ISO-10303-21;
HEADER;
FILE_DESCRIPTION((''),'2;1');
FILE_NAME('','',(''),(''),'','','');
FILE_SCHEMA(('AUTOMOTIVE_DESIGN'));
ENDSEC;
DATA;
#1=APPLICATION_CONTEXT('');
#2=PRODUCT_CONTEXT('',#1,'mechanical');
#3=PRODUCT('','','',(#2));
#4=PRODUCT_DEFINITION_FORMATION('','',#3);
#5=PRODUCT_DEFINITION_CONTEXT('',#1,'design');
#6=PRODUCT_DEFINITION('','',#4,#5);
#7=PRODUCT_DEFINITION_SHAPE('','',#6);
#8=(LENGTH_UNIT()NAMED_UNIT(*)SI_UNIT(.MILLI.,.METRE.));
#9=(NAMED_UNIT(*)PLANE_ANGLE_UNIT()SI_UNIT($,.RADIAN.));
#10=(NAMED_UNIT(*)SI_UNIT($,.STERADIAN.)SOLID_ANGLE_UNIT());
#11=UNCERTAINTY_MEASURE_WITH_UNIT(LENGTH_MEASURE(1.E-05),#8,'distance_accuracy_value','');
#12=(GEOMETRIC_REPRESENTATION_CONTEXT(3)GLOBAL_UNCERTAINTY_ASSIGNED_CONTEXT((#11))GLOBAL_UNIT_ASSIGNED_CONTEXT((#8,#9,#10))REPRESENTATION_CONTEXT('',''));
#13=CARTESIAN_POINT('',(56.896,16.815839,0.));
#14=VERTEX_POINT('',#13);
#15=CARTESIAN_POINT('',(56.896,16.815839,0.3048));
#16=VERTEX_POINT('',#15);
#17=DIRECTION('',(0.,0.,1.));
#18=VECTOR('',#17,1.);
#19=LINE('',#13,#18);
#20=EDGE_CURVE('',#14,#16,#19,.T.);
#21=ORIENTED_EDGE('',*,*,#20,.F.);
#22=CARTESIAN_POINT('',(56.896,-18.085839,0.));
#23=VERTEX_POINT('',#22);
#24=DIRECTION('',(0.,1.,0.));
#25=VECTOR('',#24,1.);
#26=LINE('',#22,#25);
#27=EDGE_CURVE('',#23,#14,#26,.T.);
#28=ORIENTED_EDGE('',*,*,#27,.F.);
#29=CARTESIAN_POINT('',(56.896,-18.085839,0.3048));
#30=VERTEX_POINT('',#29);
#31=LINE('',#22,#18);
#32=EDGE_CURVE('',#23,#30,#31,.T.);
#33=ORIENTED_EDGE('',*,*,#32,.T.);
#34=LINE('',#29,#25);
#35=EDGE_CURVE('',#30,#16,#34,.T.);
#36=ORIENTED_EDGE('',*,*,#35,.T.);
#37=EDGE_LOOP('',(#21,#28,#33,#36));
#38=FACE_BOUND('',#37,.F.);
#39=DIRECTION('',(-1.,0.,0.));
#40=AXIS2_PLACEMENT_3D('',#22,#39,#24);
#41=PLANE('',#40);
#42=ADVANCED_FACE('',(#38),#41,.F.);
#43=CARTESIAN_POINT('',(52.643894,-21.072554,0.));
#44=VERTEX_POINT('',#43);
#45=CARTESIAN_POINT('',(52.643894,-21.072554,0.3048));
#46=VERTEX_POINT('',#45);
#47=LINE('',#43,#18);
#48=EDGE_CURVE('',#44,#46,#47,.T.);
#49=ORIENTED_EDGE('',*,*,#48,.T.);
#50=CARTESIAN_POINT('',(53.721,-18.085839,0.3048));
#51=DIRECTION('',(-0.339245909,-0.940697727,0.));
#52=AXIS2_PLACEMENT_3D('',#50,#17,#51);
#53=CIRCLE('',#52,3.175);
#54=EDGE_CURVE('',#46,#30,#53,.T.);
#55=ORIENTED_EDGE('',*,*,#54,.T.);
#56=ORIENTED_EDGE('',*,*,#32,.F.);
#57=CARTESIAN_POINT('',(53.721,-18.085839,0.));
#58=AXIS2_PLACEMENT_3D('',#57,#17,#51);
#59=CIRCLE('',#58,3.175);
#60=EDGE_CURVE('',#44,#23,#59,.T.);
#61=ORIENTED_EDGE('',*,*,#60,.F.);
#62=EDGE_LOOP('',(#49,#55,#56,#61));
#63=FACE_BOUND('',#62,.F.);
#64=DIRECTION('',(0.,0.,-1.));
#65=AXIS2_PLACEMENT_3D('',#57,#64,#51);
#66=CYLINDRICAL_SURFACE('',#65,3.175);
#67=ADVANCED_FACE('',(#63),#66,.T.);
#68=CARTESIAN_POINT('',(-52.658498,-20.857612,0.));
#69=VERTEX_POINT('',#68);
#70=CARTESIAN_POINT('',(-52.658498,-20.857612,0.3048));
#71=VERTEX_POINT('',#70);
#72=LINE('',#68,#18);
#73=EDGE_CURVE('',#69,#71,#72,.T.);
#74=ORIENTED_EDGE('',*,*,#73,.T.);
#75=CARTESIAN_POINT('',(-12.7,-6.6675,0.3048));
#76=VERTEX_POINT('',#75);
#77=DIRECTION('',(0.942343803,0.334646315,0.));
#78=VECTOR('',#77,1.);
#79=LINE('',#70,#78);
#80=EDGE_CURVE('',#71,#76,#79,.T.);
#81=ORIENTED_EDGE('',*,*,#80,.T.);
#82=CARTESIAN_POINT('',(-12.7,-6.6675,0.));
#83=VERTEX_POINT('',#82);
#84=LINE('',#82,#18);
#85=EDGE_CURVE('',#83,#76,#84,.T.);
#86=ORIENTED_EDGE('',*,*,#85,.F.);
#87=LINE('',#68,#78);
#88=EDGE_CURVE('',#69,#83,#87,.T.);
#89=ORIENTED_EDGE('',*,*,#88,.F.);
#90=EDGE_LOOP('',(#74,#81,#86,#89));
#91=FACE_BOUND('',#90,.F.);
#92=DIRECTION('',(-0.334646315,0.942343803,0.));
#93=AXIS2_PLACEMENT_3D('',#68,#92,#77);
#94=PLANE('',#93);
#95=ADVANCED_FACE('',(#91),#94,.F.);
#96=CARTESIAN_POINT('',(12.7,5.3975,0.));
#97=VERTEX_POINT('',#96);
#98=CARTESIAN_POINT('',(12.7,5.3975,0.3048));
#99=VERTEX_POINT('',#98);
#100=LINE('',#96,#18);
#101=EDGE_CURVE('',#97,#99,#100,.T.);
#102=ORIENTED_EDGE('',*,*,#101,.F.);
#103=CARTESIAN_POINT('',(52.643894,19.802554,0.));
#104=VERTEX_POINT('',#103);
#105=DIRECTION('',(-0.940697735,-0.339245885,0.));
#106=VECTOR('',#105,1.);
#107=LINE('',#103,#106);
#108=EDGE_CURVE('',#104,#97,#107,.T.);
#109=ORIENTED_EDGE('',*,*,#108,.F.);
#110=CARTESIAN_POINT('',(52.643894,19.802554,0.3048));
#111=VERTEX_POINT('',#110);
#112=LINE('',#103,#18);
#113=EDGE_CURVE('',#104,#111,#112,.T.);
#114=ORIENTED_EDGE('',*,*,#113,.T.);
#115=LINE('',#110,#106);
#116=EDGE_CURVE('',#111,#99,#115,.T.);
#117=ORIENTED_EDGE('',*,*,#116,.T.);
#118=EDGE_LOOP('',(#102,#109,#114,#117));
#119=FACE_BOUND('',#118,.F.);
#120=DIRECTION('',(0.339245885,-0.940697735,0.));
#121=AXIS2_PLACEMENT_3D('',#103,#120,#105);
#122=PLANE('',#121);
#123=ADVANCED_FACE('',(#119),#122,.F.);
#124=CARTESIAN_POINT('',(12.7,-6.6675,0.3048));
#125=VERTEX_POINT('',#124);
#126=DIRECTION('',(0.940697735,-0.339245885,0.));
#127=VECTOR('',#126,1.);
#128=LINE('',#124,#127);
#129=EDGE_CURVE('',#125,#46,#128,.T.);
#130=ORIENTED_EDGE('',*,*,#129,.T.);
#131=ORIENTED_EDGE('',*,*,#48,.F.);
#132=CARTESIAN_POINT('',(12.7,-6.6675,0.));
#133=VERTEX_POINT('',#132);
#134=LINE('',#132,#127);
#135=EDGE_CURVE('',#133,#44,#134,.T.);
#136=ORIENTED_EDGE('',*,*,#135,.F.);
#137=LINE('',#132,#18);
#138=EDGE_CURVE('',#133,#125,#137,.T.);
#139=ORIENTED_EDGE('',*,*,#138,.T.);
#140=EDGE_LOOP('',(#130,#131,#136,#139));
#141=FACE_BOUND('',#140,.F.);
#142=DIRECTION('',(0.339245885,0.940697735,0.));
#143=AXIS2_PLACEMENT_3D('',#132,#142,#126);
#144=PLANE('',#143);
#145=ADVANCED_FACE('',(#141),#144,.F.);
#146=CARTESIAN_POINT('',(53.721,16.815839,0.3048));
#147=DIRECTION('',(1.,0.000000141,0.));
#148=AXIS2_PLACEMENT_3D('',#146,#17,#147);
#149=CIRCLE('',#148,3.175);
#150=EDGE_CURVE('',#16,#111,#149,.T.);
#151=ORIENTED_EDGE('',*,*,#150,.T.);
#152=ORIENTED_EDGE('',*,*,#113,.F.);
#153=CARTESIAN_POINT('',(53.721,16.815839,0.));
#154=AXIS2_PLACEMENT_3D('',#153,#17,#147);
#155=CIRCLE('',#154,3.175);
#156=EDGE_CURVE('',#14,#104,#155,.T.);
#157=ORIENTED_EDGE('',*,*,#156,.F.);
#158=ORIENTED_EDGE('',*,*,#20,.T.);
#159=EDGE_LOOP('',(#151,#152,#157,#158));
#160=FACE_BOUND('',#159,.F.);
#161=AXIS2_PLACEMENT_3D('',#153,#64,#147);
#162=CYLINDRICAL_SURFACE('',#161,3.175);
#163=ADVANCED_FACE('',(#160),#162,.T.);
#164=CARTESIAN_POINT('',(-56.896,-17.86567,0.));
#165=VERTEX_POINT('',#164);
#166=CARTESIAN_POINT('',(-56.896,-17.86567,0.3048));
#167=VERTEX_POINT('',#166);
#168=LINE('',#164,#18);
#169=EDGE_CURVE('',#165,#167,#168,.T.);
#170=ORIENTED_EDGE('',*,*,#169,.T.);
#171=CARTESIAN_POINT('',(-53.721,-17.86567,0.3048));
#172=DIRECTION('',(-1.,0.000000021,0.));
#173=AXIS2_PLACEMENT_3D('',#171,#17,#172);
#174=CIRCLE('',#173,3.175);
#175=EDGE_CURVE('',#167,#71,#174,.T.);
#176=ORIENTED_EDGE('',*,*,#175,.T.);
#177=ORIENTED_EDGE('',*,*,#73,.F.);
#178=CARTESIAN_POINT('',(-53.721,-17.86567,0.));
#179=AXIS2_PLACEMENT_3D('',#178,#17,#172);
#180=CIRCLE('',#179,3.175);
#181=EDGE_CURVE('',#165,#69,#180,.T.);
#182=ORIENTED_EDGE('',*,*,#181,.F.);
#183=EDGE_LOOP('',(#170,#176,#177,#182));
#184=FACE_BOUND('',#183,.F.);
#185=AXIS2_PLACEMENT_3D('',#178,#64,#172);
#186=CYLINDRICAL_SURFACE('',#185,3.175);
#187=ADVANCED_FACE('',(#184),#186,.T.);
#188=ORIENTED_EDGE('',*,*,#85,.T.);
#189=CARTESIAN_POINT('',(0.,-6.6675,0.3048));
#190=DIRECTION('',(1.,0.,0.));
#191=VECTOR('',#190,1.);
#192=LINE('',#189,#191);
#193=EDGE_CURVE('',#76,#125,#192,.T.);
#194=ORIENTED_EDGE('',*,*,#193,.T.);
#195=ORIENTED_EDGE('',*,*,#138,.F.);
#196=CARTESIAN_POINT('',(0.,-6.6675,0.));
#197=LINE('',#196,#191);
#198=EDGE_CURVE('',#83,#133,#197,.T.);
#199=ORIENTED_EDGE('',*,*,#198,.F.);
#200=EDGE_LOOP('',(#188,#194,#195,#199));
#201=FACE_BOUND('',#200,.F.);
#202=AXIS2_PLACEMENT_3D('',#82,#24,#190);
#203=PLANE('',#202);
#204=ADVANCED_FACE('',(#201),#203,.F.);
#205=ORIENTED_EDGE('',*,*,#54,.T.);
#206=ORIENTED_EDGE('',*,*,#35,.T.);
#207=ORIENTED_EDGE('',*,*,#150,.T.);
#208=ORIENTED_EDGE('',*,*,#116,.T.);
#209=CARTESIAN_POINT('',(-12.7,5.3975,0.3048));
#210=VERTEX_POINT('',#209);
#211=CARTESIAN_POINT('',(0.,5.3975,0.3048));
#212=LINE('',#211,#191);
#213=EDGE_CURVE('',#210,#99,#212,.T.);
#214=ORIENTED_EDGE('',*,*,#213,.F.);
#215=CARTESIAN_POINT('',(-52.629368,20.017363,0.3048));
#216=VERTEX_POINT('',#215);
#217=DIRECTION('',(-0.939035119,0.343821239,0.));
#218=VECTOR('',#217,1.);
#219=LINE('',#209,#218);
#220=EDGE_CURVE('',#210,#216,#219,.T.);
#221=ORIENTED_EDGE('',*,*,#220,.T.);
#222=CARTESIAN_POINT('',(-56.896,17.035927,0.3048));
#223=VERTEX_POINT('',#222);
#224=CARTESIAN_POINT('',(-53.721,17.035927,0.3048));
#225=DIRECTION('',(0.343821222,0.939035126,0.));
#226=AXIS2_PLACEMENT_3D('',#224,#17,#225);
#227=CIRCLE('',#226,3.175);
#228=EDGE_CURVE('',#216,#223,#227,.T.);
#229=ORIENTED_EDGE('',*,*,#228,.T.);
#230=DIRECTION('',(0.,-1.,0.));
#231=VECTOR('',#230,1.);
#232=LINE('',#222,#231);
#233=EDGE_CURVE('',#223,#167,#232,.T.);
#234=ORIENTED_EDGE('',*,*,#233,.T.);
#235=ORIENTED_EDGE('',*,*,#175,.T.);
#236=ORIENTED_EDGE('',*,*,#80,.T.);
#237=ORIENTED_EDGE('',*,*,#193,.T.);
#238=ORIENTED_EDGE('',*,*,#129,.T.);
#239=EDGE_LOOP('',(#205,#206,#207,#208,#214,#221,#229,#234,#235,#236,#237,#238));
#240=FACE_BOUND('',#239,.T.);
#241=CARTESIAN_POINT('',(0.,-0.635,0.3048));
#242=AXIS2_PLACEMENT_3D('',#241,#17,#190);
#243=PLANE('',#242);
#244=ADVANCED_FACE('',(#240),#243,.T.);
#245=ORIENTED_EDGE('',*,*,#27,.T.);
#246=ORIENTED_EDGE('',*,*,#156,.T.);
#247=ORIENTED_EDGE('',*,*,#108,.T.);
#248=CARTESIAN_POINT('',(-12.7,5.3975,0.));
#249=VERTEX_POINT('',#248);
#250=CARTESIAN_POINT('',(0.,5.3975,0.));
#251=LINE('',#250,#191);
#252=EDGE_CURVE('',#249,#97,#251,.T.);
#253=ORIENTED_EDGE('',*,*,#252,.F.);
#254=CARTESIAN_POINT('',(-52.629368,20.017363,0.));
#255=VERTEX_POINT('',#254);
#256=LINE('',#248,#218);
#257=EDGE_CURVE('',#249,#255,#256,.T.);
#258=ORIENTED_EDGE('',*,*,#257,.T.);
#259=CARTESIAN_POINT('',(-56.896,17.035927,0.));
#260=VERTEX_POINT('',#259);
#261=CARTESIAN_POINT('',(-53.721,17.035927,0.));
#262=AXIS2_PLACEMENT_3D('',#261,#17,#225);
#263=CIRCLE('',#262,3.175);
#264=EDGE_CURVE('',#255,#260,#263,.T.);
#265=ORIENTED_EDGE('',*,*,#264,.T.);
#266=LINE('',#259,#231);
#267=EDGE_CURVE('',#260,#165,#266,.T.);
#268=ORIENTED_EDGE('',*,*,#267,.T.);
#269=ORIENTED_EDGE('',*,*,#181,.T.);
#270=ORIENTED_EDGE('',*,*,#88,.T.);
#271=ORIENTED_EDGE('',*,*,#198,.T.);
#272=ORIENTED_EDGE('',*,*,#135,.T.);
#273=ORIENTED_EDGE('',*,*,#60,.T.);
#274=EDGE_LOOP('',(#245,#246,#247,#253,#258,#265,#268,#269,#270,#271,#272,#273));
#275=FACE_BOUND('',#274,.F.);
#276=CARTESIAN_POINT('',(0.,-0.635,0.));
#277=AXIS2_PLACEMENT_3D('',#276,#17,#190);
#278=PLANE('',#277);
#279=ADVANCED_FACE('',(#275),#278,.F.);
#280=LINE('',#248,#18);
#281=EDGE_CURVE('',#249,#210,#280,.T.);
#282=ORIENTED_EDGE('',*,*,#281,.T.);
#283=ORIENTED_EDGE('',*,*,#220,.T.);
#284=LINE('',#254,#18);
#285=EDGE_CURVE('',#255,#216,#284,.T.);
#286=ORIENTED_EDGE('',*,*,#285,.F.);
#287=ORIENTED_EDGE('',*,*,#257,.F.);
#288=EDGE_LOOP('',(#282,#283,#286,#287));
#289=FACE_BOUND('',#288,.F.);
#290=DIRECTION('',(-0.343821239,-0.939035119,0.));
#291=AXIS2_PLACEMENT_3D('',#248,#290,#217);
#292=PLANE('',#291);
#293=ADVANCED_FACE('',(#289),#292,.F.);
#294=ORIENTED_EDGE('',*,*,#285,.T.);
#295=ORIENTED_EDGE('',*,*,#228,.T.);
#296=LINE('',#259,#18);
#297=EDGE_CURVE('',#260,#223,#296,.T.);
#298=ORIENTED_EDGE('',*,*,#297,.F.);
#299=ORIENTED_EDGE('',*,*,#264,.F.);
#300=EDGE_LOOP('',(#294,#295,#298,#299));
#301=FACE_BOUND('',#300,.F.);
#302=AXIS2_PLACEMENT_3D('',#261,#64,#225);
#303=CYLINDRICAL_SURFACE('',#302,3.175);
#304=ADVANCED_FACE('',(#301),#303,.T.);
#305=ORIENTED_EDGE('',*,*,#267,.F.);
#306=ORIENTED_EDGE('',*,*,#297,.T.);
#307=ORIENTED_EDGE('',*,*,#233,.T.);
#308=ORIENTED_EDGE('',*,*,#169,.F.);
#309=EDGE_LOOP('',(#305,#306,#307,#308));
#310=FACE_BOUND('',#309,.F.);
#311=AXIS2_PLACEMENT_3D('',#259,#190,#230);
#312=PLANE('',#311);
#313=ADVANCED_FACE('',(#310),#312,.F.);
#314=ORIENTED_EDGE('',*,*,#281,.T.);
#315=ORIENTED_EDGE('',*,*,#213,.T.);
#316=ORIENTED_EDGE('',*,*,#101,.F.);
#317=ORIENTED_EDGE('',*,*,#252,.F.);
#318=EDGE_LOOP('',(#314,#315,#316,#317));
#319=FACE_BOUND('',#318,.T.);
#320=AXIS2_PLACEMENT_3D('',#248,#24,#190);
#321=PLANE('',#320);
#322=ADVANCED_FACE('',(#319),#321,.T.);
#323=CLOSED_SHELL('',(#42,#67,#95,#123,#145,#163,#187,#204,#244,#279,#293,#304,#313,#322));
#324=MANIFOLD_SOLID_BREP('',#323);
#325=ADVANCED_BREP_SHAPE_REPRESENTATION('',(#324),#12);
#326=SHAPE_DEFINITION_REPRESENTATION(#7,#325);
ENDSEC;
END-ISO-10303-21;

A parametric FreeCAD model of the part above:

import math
import FreeCAD as App
import Part
import Sketcher

V = App.Vector
Q = App.Units.Quantity

doc = App.newDocument("Part")
body = doc.addObject("PartDesign::Body", "Body")

# Sketch on XY plane
sketch1 = body.newObject("Sketcher::SketchObject", "Sketch")
sketch1.AttachmentSupport = (doc.getObject("XY_Plane"), [""])
sketch1.MapMode = "FlatFace"
sketch1.addGeometry(Part.LineSegment(V(-12.7, -6.7, 0), V(12.7, -6.7, 0)), False)
sketch1.addGeometry(Part.LineSegment(V(12.7, -6.7, 0), V(52.6, -21.1, 0)), False)
sketch1.addGeometry(Part.ArcOfCircle(Part.Circle(V(53.7, -18.1, 0), V(0, 0, 1), 3.2), math.radians(-110), math.radians(0)), False)
sketch1.addGeometry(Part.LineSegment(V(56.9, -18.1, 0), V(56.9, 16.8, 0)), False)
sketch1.addGeometry(Part.ArcOfCircle(Part.Circle(V(53.7, 16.8, 0), V(0, 0, 1), 3.2), math.radians(0), math.radians(110)), False)
sketch1.addGeometry(Part.LineSegment(V(52.6, 19.8, 0), V(12.7, 5.4, 0)), False)
sketch1.addGeometry(Part.LineSegment(V(12.7, 5.4, 0), V(-12.7, 5.4, 0)), False)
sketch1.addGeometry(Part.LineSegment(V(-12.7, 5.4, 0), V(-52.6, 20, 0)), False)
sketch1.addGeometry(Part.ArcOfCircle(Part.Circle(V(-53.7, 17, 0), V(0, 0, 1), 3.2), math.radians(70), math.radians(180)), False)
sketch1.addGeometry(Part.LineSegment(V(-56.9, 17, 0), V(-56.9, -17.9, 0)), False)
sketch1.addGeometry(Part.ArcOfCircle(Part.Circle(V(-53.7, -17.9, 0), V(0, 0, 1), 3.2), math.radians(180), math.radians(290)), False)
sketch1.addGeometry(Part.LineSegment(V(-52.7, -20.9, 0), V(-12.7, -6.7, 0)), False)
sketch1.addConstraint(Sketcher.Constraint("Coincident", 0, 2, 1, 1))
sketch1.addConstraint(Sketcher.Constraint("Tangent", 1, 2, 2, 1))
sketch1.addConstraint(Sketcher.Constraint("Tangent", 2, 2, 3, 1))
sketch1.addConstraint(Sketcher.Constraint("Tangent", 3, 2, 4, 1))
sketch1.addConstraint(Sketcher.Constraint("Tangent", 4, 2, 5, 1))
sketch1.addConstraint(Sketcher.Constraint("Coincident", 5, 2, 6, 1))
sketch1.addConstraint(Sketcher.Constraint("Coincident", 6, 2, 7, 1))
sketch1.addConstraint(Sketcher.Constraint("Tangent", 7, 2, 8, 1))
sketch1.addConstraint(Sketcher.Constraint("Tangent", 8, 2, 9, 1))
sketch1.addConstraint(Sketcher.Constraint("Tangent", 9, 2, 10, 1))
sketch1.addConstraint(Sketcher.Constraint("Tangent", 10, 2, 11, 1))
sketch1.addConstraint(Sketcher.Constraint("Coincident", 11, 2, 0, 1))
sketch1.addConstraint(Sketcher.Constraint("Horizontal", 0))
sketch1.addConstraint(Sketcher.Constraint("Vertical", 3))
sketch1.addConstraint(Sketcher.Constraint("Horizontal", 6))
sketch1.addConstraint(Sketcher.Constraint("Vertical", 9))
sketch1.addConstraint(Sketcher.Constraint("Equal", 2, 4))
sketch1.addConstraint(Sketcher.Constraint("Equal", 4, 8))
sketch1.addConstraint(Sketcher.Constraint("Equal", 8, 10))
sketch1.addConstraint(Sketcher.Constraint("Vertical", 1, 2, 4, 2))
sketch1.addConstraint(Sketcher.Constraint("Vertical", 0, 2, 5, 2))
sketch1.addConstraint(Sketcher.Constraint("Vertical", 6, 2, 11, 2))
sketch1.addConstraint(Sketcher.Constraint("DistanceX", 0, 1, 0, 2, Q("1 in")))
sketch1.addConstraint(Sketcher.Constraint("Radius", 2, Q("0.125 in")))
sketch1.addConstraint(Sketcher.Constraint("DistanceX", -1, 1, 0, 2, Q("0.5 in")))
sketch1.addConstraint(Sketcher.Constraint("DistanceX", -1, 1, 2, 2, Q("2.24 in")))
sketch1.addConstraint(Sketcher.Constraint("DistanceX", 8, 2, -1, 1, Q("2.24 in")))
sketch1.addConstraint(Sketcher.Constraint("DistanceY", 0, 2, 5, 2, Q("0.475 in")))
sketch1.addConstraint(Sketcher.Constraint("DistanceY", 0, 2, -1, 1, Q("0.2625 in")))
sketch1.addConstraint(Sketcher.Constraint("Distance", 7, 42.521698))
sketch1.addConstraint(Sketcher.Constraint("DistanceY", 3, 1, 3, 2, 34.901678))
sketch1.addConstraint(Sketcher.Constraint("DistanceX", 10, 3, 10, 2, 1.062502))
pad1 = body.newObject("PartDesign::Pad", "Pad")
pad1.Profile = sketch1
pad1.Length = Q("0.012 in")

doc.recompute()
